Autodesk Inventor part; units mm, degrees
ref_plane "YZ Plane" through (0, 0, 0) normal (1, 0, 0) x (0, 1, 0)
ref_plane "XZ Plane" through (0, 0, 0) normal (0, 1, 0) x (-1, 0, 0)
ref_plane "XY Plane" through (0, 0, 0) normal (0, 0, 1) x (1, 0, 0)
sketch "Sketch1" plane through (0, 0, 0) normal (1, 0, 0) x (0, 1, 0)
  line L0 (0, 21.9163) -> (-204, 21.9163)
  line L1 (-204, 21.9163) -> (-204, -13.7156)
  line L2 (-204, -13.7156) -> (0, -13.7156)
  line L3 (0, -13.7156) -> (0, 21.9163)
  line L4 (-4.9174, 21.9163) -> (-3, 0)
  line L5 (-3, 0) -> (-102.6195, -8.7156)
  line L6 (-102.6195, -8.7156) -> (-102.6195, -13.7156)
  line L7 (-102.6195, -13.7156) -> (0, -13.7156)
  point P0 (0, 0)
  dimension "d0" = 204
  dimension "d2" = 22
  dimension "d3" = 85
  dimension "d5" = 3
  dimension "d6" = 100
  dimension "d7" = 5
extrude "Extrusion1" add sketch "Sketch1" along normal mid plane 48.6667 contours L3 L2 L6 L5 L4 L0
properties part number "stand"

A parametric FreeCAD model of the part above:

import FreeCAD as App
import Part
import Sketcher
Q = App.Units.Quantity


def add_polygon(sketch, points):
    """Adds a closed chain of lines whose ends are joined by coincident constraints."""
    first, n = sketch.GeometryCount, len(points)
    for a, b in zip(points, points[1:] + points[:1]):
        sketch.addGeometry(Part.LineSegment(App.Vector(*a, 0), App.Vector(*b, 0)), False)
    for i in range(n):
        sketch.addConstraint(Sketcher.Constraint("Coincident", first + i, 2, first + (i + 1) % n, 1))

doc = App.newDocument("Part")
params = doc.addObject("Spreadsheet::Sheet", "Params")
for row, (alias, value) in enumerate([
    ("sketch1_height", "5 mm"),
    ("sketch1_length", "22 mm"),
    ("sketch1_length2", "100 mm"),
    ("pad1_length", "48.6667 mm"),
], start=1):
    params.set(f"A{row}", alias)
    params.set(f"B{row}", "=" + value)
    params.setAlias(f"B{row}", alias)

body = doc.addObject("PartDesign::Body", "Body")

# Sketch on YZ plane
sketch1 = doc.addObject("Sketcher::SketchObject", "Sketch")
body.addObject(sketch1)
sketch1.AttachmentSupport = (doc.YZ_Plane, [""])
sketch1.MapMode = "FlatFace"
add_polygon(sketch1, [(0, -13.7), (0, 21.9), (-4.9, 21.9), (-3, 0), (-102.6, -8.7), (-102.6, -13.7)])  # lines 0-5
sketch1.addConstraint([
    Sketcher.Constraint("Vertical", 0),
    Sketcher.Constraint("Horizontal", 1),
    Sketcher.Constraint("Vertical", 4),
    Sketcher.Constraint("Horizontal", 5),
    Sketcher.Constraint("PointOnObject", 0, 2, -2),
    Sketcher.Constraint("PointOnObject", 2, 2, -1),
    Sketcher.Constraint("Perpendicular", 2, 3),
    Sketcher.Constraint("DistanceY", 4, 2, 4, 1, Q("5 mm")),
    Sketcher.Constraint("Angle", 2, Q("-85 deg")),
    Sketcher.Constraint("Distance", 2, Q("22 mm")),
    Sketcher.Constraint("Distance", 3, Q("100 mm")),
    Sketcher.Constraint("DistanceX", 2, 2, -1, 1, Q("3 mm")),
])
sketch1.setExpression("Constraints[13]", "Params.sketch1_height")
sketch1.setExpression("Constraints[15]", "Params.sketch1_length")
sketch1.setExpression("Constraints[16]", "Params.sketch1_length2")
pad1 = doc.addObject("PartDesign::Pad", "Pad")
body.addObject(pad1)
pad1.Profile = sketch1
pad1.setExpression("Length", "Params.pad1_length")
pad1.Midplane = True

doc.recompute()
